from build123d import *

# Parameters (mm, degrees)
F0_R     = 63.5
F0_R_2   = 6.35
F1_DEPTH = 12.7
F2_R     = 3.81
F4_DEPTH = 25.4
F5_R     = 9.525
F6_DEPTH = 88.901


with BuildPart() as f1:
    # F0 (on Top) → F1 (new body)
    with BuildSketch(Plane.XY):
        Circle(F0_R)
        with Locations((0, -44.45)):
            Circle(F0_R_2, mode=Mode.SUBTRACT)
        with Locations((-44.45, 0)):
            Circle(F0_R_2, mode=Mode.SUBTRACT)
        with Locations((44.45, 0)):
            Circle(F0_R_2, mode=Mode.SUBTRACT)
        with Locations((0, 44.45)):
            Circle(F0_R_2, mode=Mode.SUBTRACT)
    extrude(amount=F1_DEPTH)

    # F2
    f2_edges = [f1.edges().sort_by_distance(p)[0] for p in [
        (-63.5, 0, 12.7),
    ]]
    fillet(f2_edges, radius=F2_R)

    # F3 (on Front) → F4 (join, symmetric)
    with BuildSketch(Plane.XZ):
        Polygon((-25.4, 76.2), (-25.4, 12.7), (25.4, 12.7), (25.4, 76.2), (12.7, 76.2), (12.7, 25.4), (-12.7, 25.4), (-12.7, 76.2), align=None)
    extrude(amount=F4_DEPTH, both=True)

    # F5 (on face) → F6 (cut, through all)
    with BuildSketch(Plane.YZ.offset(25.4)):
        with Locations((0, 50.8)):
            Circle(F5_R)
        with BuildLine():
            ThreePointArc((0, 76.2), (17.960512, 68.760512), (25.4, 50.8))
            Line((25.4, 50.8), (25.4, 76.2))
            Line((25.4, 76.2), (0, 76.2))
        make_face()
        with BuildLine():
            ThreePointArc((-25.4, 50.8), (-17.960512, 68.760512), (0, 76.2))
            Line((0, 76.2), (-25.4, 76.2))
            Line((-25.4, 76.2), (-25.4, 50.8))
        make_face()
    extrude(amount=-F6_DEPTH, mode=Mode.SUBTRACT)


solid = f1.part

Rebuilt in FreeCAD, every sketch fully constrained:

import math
import FreeCAD as App
import Part
import Sketcher
from FreeCAD import Vector
Q = App.Units.Quantity


def edges_at(feature, points):
    """Names of the edges that pass closest to the given points."""
    edges = feature.Shape.Edges
    near = lambda p: min(range(len(edges)), key=lambda i: edges[i].distToShape(Part.Vertex(*p))[0])
    return sorted({f"Edge{near(p) + 1}" for p in points})

doc = App.newDocument("Part")
body = doc.addObject("PartDesign::Body", "Body")

# Sketch on XY plane
sketch1 = body.newObject("Sketcher::SketchObject", "Sketch")
sketch1.AttachmentSupport = (doc.getObject("XY_Plane"), [""])
sketch1.MapMode = "FlatFace"
sketch1.addGeometry([
    Part.Circle(Vector(0, 0, 0), Vector(0, 0, 1), 63.5),  # 0
    Part.Circle(Vector(0, -44.45, 0), Vector(0, 0, 1), 6.35),  # 1
    Part.Circle(Vector(-44.45, 0, 0), Vector(0, 0, 1), 6.35),  # 2
    Part.Circle(Vector(44.45, 0, 0), Vector(0, 0, 1), 6.35),  # 3
    Part.Circle(Vector(0, 44.45, 0), Vector(0, 0, 1), 6.35),  # 4
], False)
sketch1.addConstraint([
    Sketcher.Constraint("Coincident", 0, 3, -1, 1),
    Sketcher.Constraint("Equal", 1, 2),
    Sketcher.Constraint("Equal", 2, 3),
    Sketcher.Constraint("Equal", 3, 4),
    Sketcher.Constraint("Symmetric", 2, 3, 3, 3, -1, 1),
    Sketcher.Constraint("Symmetric", 1, 3, 4, 3, -1, 1),
    Sketcher.Constraint("PointOnObject", 1, 3, -2),
    Sketcher.Constraint("PointOnObject", 2, 3, -1),
    Sketcher.Constraint("Diameter", 0, Q("5 in")),
    Sketcher.Constraint("Diameter", 1, Q("0.5 in")),
    Sketcher.Constraint("DistanceX", 2, 3, 3, 3, Q("3.5 in")),
    Sketcher.Constraint("DistanceY", 1, 3, 4, 3, Q("3.5 in")),
])
pad1 = body.newObject("PartDesign::Pad", "Pad")
pad1.Profile = sketch1
pad1.Length = Q("0.5 in")
doc.recompute()

fillet = body.newObject("PartDesign::Fillet", "Fillet")
fillet.Base = (pad1, edges_at(pad1, [(-63.5, 0, 12.7)]))
fillet.Radius = Q("0.15 in")

# Sketch on XZ plane
sketch2 = body.newObject("Sketcher::SketchObject", "Sketch001")
sketch2.AttachmentSupport = (doc.getObject("XZ_Plane"), [""])
sketch2.MapMode = "FlatFace"
sketch2.addGeometry([
    Part.LineSegment(Vector(-25.4, 76.2, 0), Vector(-25.4, 12.7, 0)),  # 0
    Part.LineSegment(Vector(-25.4, 12.7, 0), Vector(25.4, 12.7, 0)),  # 1
    Part.LineSegment(Vector(25.4, 12.7, 0), Vector(25.4, 76.2, 0)),  # 2
    Part.LineSegment(Vector(25.4, 76.2, 0), Vector(12.7, 76.2, 0)),  # 3
    Part.LineSegment(Vector(12.7, 76.2, 0), Vector(12.7, 25.4, 0)),  # 4
    Part.LineSegment(Vector(12.7, 25.4, 0), Vector(-12.7, 25.4, 0)),  # 5
    Part.LineSegment(Vector(-12.7, 25.4, 0), Vector(-12.7, 76.2, 0)),  # 6
    Part.LineSegment(Vector(-12.7, 76.2, 0), Vector(-25.4, 76.2, 0)),  # 7
], False)
sketch2.addConstraint([
    Sketcher.Constraint("Coincident", 0, 2, 1, 1),
    Sketcher.Constraint("Coincident", 1, 2, 2, 1),
    Sketcher.Constraint("Coincident", 2, 2, 3, 1),
    Sketcher.Constraint("Coincident", 3, 2, 4, 1),
    Sketcher.Constraint("Coincident", 4, 2, 5, 1),
    Sketcher.Constraint("Coincident", 5, 2, 6, 1),
    Sketcher.Constraint("Coincident", 6, 2, 7, 1),
    Sketcher.Constraint("Coincident", 7, 2, 0, 1),
    Sketcher.Constraint("Vertical", 0),
    Sketcher.Constraint("Horizontal", 1),
    Sketcher.Constraint("Vertical", 2),
    Sketcher.Constraint("Horizontal", 3),
    Sketcher.Constraint("Vertical", 4),
    Sketcher.Constraint("Horizontal", 5),
    Sketcher.Constraint("Vertical", 6),
    Sketcher.Constraint("Horizontal", 7),
    Sketcher.Constraint("Symmetric", 3, 2, 6, 2, -2),
    Sketcher.Constraint("Equal", 3, 7),
    Sketcher.Constraint("Equal", 1, 4),
    Sketcher.Constraint("DistanceX", 1, 1, 1, 2, Q("2 in")),
    Sketcher.Constraint("DistanceX", 5, 2, 5, 1, Q("1 in")),
    Sketcher.Constraint("DistanceY", 0, 2, 0, 1, Q("2.5 in")),
    Sketcher.Constraint("DistanceY", -1, 1, 2, 2, Q("3 in")),
])
pad2 = body.newObject("PartDesign::Pad", "Pad001")
pad2.Profile = sketch2
pad2.Length = Q("2 in")
pad2.Midplane = True

# Sketch on YZ plane
sketch3 = body.newObject("Sketcher::SketchObject", "Sketch002")
sketch3.AttachmentSupport = (doc.getObject("YZ_Plane"), [""])
sketch3.MapMode = "FlatFace"
sketch3.AttachmentOffset = App.Placement(Vector(0, 0, 1 * 25.4), App.Rotation())
sketch3.addGeometry([
    Part.Circle(Vector(0, 50.8, 0), Vector(0, 0, 1), 9.525),  # 0
    Part.ArcOfCircle(Part.Circle(Vector(-0.000001, 50.799999, 0), Vector(0, 0, 1), 25.400001), math.radians(0.000002), math.radians(89.999998)),  # 1
    Part.LineSegment(Vector(25.4, 50.8, 0), Vector(25.4, 76.2, 0)),  # 2
    Part.LineSegment(Vector(25.4, 76.2, 0), Vector(0, 76.2, 0)),  # 3
    Part.ArcOfCircle(Part.Circle(Vector(0.000001, 50.799999, 0), Vector(0, 0, 1), 25.400001), math.radians(90.000002), math.radians(179.999998)),  # 4
    Part.LineSegment(Vector(0, 76.2, 0), Vector(-25.4, 76.2, 0)),  # 5
    Part.LineSegment(Vector(-25.4, 76.2, 0), Vector(-25.4, 50.8, 0)),  # 6
], False)
sketch3.addConstraint([
    Sketcher.Constraint("Tangent", 1, 1, 2, 1),
    Sketcher.Constraint("Coincident", 2, 2, 3, 1),
    Sketcher.Constraint("Tangent", 3, 2, 1, 2),
    Sketcher.Constraint("Tangent", 4, 1, 5, 1),
    Sketcher.Constraint("Coincident", 5, 2, 6, 1),
    Sketcher.Constraint("Tangent", 6, 2, 4, 2),
    Sketcher.Constraint("Vertical", 2),
    Sketcher.Constraint("Horizontal", 3),
    Sketcher.Constraint("Horizontal", 5),
    Sketcher.Constraint("Vertical", 6),
    Sketcher.Constraint("Coincident", 1, 3, 0, 3),
    Sketcher.Constraint("Coincident", 4, 3, 0, 3),
    Sketcher.Constraint("Equal", 1, 4),
    Sketcher.Constraint("PointOnObject", 0, 3, -2),
    Sketcher.Constraint("Radius", 1, Q("1 in")),
    Sketcher.Constraint("Diameter", 0, Q("0.75 in")),
    Sketcher.Constraint("DistanceY", -1, 1, 0, 3, Q("2 in")),
])
pocket1 = body.newObject("PartDesign::Pocket", "Pocket")
pocket1.Profile = sketch3
pocket1.Type = "ThroughAll"

doc.recompute()
